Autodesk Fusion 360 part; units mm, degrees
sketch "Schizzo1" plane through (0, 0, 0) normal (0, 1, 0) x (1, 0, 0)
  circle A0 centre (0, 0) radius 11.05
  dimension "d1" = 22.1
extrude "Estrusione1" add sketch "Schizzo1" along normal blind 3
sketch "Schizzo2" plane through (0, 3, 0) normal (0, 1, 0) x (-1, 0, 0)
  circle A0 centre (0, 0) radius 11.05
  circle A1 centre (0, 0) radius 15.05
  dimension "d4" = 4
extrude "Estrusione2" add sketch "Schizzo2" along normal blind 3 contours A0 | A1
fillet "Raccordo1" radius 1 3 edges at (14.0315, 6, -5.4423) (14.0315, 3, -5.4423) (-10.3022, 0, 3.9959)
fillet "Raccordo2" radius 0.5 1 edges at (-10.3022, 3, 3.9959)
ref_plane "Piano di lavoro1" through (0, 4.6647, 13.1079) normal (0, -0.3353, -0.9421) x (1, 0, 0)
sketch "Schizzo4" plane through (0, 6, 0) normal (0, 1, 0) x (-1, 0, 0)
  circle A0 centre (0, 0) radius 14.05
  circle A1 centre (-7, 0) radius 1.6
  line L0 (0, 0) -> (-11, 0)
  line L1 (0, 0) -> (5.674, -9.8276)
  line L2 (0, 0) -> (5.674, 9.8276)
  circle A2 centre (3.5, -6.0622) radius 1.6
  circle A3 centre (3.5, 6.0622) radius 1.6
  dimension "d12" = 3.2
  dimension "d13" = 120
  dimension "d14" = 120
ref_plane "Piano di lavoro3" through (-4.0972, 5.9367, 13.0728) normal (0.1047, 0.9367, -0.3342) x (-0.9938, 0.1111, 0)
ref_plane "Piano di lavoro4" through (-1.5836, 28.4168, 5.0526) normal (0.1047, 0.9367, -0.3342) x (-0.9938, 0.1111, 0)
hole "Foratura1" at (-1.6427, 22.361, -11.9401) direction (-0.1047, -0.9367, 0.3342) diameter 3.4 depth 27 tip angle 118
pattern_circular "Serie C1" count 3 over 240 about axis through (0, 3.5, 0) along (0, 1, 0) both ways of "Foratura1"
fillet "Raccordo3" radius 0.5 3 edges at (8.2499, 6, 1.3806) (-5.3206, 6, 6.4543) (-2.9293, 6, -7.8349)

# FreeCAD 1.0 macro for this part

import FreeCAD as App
import Part
import Sketcher

V = App.Vector


def edges_at(feature, points):
    """Names of the edges that pass closest to the given points."""
    edges = feature.Shape.Edges
    near = lambda p: min(range(len(edges)), key=lambda i: edges[i].distToShape(Part.Vertex(*p))[0])
    return sorted({f"Edge{near(p) + 1}" for p in points})

doc = App.newDocument("Part")
body = doc.addObject("PartDesign::Body", "Body")

sketch1 = body.newObject("Sketcher::SketchObject", "Sketch")
sketch1.AttachmentSupport = (doc.getObject("XZ_Plane"), [""])
sketch1.MapMode = "FlatFace"
sketch1.addGeometry(Part.Circle(V(0, 0, 0), V(0, 0, 1), 11), False)
sketch1.addConstraint([
    Sketcher.Constraint("Coincident", 0, 3, -1, 1),
    Sketcher.Constraint("Diameter", 0, 22.1),
])
pad1 = body.newObject("PartDesign::Pad", "Pad")
pad1.Profile = sketch1
pad1.Length = 3
pad1.Reversed = True

sketch2 = body.newObject("Sketcher::SketchObject", "Sketch001")
sketch2.AttachmentSupport = (doc.getObject("XZ_Plane"), [""])
sketch2.MapMode = "FlatFace"
sketch2.AttachmentOffset = App.Placement(V(0, 0, -3), App.Rotation())
sketch2.addGeometry(Part.Circle(V(0, 0, 0), V(0, 0, 1), 15), False)
sketch2.addConstraint([
    Sketcher.Constraint("Coincident", 0, 3, -1, 1),
    Sketcher.Constraint("Diameter", 0, 30.1),
])
pad2 = body.newObject("PartDesign::Pad", "Pad001")
pad2.Profile = sketch2
pad2.Length = 3
pad2.Reversed = True
doc.recompute()

fillet = body.newObject("PartDesign::Fillet", "Fillet")
fillet.Base = (pad2, edges_at(pad2, [(14.031, 6, -5.442), (14.031, 3, -5.442), (-10.302, 0, 3.996)]))
fillet.Radius = 1
doc.recompute()

fillet2 = body.newObject("PartDesign::Fillet", "Fillet001")
fillet2.Base = (fillet, edges_at(fillet, [(-10.302, 3, 3.996)]))
fillet2.Radius = 0.5

sketch3 = body.newObject("Sketcher::SketchObject", "Sketch002")
sketch3.Placement = App.Placement(V(2.592632, 23.195022, -8.275623), App.Rotation(V(0, 0.336037006, 0.941848783), V(0.994504174, -0.098608677, 0.035182043), V(0.104696931, 0.936672547, -0.334190205), "ZXY"))
sketch3.addGeometry(Part.Circle(V(-3.7, -4.3, 0), V(0, 0, 1), 1.7), False)
sketch3.addConstraint([
    Sketcher.Constraint("Diameter", 0, 3.4),
    Sketcher.Constraint("DistanceX", 0, 3, -1, 1, 3.7316),
    Sketcher.Constraint("DistanceY", 0, 3, -1, 1, 4.2587),
])
doc.recompute()
hole = body.newObject("PartDesign::Hole", "Hole")
hole.Profile = sketch3
hole.ThreadType = "None"
hole.Diameter = 3.4
hole.DepthType = "Dimension"
hole.Depth = 27
hole.DrillPoint = "Angled"
hole.DrillPointAngle = 118
doc.recompute()

polarpattern = body.newObject("PartDesign::PolarPattern", "PolarPattern")
polarpattern.Originals = [hole]
polarpattern.Axis = (doc.getObject("Y_Axis"), [""])
polarpattern.Angle = 360
polarpattern.Occurrences = 3
body.Tip = polarpattern
doc.recompute()

fillet3 = body.newObject("PartDesign::Fillet", "Fillet002")
fillet3.Base = (polarpattern, edges_at(polarpattern, [(8.25, 6, 1.381), (-5.321, 6, 6.454), (-2.929, 6, -7.835)]))
fillet3.Radius = 0.5

doc.recompute()
